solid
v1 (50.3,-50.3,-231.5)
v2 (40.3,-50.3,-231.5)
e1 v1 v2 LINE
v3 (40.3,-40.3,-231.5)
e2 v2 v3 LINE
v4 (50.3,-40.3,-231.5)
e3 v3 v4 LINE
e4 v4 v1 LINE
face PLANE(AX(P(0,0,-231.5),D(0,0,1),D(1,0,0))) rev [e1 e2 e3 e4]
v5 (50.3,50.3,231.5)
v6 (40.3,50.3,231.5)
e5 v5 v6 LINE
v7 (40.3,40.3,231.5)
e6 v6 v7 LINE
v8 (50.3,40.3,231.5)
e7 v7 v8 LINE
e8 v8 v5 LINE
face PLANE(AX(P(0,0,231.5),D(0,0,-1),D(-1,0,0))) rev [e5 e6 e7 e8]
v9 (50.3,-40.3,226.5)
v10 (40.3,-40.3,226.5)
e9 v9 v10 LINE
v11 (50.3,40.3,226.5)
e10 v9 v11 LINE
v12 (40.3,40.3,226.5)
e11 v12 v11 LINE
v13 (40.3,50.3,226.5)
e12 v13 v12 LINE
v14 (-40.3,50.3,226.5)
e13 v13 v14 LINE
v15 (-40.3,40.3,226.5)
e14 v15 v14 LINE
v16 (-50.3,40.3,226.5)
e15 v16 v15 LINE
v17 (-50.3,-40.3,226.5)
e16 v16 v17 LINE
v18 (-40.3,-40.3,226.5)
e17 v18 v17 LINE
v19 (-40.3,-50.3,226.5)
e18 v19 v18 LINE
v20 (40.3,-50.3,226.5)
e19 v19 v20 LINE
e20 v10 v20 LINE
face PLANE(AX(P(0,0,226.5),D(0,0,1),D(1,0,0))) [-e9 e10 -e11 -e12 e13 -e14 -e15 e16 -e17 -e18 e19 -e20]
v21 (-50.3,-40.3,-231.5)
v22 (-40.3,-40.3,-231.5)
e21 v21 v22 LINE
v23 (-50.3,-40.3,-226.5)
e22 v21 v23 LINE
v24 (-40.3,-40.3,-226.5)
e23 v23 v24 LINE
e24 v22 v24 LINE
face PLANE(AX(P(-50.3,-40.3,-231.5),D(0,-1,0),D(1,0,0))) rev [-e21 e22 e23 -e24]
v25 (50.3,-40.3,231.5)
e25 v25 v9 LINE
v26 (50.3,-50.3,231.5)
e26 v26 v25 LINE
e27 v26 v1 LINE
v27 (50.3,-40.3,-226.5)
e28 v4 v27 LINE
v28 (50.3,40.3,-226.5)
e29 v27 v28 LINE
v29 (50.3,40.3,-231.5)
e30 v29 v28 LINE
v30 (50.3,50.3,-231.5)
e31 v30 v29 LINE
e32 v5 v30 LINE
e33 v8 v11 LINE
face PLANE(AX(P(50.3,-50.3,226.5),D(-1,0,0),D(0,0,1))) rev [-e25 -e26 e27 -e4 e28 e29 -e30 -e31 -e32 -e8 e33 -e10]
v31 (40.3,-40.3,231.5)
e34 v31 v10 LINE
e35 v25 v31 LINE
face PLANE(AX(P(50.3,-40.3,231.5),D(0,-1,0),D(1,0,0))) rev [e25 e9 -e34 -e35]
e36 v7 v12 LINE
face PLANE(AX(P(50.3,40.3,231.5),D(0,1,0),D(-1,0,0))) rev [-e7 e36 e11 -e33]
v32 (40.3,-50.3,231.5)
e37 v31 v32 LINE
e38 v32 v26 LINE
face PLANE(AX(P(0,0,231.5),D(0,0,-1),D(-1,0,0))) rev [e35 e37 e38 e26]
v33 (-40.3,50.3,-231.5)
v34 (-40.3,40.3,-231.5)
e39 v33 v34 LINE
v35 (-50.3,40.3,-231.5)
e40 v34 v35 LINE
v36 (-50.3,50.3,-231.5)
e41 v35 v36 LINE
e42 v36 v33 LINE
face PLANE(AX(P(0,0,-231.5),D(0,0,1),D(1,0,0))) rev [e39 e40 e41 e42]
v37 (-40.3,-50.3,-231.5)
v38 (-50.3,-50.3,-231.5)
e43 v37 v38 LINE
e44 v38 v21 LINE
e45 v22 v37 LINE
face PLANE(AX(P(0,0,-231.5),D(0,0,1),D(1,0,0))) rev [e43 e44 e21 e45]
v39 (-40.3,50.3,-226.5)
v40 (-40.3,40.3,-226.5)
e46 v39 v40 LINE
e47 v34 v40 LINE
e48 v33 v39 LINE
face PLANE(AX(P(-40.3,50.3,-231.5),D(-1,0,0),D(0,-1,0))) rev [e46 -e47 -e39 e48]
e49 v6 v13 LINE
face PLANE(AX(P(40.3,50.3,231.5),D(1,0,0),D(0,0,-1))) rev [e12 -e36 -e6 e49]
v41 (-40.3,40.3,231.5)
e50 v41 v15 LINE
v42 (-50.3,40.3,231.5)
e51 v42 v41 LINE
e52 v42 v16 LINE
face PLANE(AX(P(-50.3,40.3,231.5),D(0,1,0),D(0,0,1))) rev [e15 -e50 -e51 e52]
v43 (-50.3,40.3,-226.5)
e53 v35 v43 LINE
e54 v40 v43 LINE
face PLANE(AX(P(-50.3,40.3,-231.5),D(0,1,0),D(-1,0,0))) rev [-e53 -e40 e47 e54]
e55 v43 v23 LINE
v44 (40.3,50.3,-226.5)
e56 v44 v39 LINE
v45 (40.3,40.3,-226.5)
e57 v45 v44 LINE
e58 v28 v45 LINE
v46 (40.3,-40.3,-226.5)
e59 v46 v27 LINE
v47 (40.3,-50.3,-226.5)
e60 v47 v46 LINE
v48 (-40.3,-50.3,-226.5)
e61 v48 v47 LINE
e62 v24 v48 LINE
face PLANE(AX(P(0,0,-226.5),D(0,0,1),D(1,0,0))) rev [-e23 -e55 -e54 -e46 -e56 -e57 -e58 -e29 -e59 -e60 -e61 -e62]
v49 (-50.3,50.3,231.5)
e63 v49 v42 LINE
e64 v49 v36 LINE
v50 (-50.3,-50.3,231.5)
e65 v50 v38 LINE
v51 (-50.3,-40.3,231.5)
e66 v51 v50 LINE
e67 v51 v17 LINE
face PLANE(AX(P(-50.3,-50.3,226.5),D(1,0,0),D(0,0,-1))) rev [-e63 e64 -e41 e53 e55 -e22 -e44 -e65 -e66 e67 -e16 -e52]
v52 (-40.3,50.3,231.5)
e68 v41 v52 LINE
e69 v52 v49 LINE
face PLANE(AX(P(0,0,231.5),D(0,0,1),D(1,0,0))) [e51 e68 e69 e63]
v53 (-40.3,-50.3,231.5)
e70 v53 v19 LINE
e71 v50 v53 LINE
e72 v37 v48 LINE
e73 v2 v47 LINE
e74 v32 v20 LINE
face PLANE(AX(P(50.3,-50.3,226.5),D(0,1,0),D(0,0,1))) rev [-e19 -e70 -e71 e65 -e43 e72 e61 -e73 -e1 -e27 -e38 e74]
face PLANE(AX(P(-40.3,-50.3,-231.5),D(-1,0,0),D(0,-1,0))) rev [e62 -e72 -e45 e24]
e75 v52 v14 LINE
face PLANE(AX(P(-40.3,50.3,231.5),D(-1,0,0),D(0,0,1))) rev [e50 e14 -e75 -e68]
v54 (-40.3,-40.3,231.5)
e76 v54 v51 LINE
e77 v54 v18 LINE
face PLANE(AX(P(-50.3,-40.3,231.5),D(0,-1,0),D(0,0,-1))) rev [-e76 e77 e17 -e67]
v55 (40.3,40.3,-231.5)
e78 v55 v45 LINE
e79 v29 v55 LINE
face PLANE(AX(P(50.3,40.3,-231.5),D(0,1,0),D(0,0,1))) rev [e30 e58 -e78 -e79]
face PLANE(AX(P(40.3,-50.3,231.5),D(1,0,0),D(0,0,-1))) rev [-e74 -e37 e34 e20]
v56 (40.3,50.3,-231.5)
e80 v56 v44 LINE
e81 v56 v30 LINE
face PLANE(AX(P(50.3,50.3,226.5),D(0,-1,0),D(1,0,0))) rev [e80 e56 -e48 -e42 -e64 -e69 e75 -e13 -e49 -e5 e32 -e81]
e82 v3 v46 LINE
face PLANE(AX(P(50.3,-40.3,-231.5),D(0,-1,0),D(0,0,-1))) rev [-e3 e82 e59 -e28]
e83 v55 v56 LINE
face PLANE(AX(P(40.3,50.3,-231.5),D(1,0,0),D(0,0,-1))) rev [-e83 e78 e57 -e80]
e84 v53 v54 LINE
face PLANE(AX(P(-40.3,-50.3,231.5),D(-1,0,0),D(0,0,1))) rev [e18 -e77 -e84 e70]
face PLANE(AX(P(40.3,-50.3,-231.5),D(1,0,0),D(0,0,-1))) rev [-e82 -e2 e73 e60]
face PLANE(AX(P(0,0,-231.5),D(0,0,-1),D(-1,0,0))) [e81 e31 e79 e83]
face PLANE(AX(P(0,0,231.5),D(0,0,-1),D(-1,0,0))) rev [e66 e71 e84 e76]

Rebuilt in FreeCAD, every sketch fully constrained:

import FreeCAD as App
import Part
import Sketcher

V = App.Vector
Q = App.Units.Quantity

doc = App.newDocument("Part")
body = doc.addObject("PartDesign::Body", "Body")

# Sketch on XY plane
sketch1 = body.newObject("Sketcher::SketchObject", "Sketch")
sketch1.AttachmentSupport = (doc.getObject("XY_Plane"), [""])
sketch1.MapMode = "FlatFace"
sketch1.addGeometry(Part.LineSegment(V(-50.3, 50.3, 0), V(-50.3, -50.3, 0)), False)
sketch1.addGeometry(Part.LineSegment(V(-50.3, -50.3, 0), V(50.3, -50.3, 0)), False)
sketch1.addGeometry(Part.LineSegment(V(50.3, -50.3, 0), V(50.3, 50.3, 0)), False)
sketch1.addGeometry(Part.LineSegment(V(50.3, 50.3, 0), V(-50.3, 50.3, 0)), False)
sketch1.addConstraint(Sketcher.Constraint("Coincident", 0, 2, 1, 1))
sketch1.addConstraint(Sketcher.Constraint("Coincident", 1, 2, 2, 1))
sketch1.addConstraint(Sketcher.Constraint("Coincident", 2, 2, 3, 1))
sketch1.addConstraint(Sketcher.Constraint("Coincident", 3, 2, 0, 1))
sketch1.addConstraint(Sketcher.Constraint("Vertical", 0))
sketch1.addConstraint(Sketcher.Constraint("Horizontal", 1))
sketch1.addConstraint(Sketcher.Constraint("Vertical", 2))
sketch1.addConstraint(Sketcher.Constraint("Horizontal", 3))
sketch1.addConstraint(Sketcher.Constraint("Symmetric", 0, 2, 2, 2, -1, 1))
sketch1.addConstraint(Sketcher.Constraint("Equal", 3, 0))
sketch1.addConstraint(Sketcher.Constraint("DistanceX", 1, 1, 1, 2, Q("100.6 mm")))
pad1 = body.newObject("PartDesign::Pad", "Pad")
pad1.Profile = sketch1
pad1.Length = 453
pad1.Midplane = True

# Sketch on XY plane
sketch2 = body.newObject("Sketcher::SketchObject", "Sketch001")
sketch2.AttachmentSupport = (doc.getObject("XY_Plane"), [""])
sketch2.MapMode = "FlatFace"
sketch2.AttachmentOffset = App.Placement(V(0, 0, 226.5), App.Rotation())
sketch2.addGeometry(Part.LineSegment(V(-50.3, 50.3, 0), V(-50.3, 40.3, 0)), False)
sketch2.addGeometry(Part.LineSegment(V(-50.3, 40.3, 0), V(-40.3, 40.3, 0)), False)
sketch2.addGeometry(Part.LineSegment(V(-40.3, 40.3, 0), V(-40.3, 50.3, 0)), False)
sketch2.addGeometry(Part.LineSegment(V(-40.3, 50.3, 0), V(-50.3, 50.3, 0)), False)
sketch2.addGeometry(Part.LineSegment(V(40.3, 50.3, 0), V(40.3, 40.3, 0)), False)
sketch2.addGeometry(Part.LineSegment(V(40.3, 40.3, 0), V(50.3, 40.3, 0)), False)
sketch2.addGeometry(Part.LineSegment(V(50.3, 40.3, 0), V(50.3, 50.3, 0)), False)
sketch2.addGeometry(Part.LineSegment(V(50.3, 50.3, 0), V(40.3, 50.3, 0)), False)
sketch2.addGeometry(Part.LineSegment(V(40.3, -40.3, 0), V(40.3, -50.3, 0)), False)
sketch2.addGeometry(Part.LineSegment(V(40.3, -50.3, 0), V(50.3, -50.3, 0)), False)
sketch2.addGeometry(Part.LineSegment(V(50.3, -50.3, 0), V(50.3, -40.3, 0)), False)
sketch2.addGeometry(Part.LineSegment(V(50.3, -40.3, 0), V(40.3, -40.3, 0)), False)
sketch2.addGeometry(Part.LineSegment(V(-50.3, -40.3, 0), V(-50.3, -50.3, 0)), False)
sketch2.addGeometry(Part.LineSegment(V(-50.3, -50.3, 0), V(-40.3, -50.3, 0)), False)
sketch2.addGeometry(Part.LineSegment(V(-40.3, -50.3, 0), V(-40.3, -40.3, 0)), False)
sketch2.addGeometry(Part.LineSegment(V(-40.3, -40.3, 0), V(-50.3, -40.3, 0)), False)
sketch2.addConstraint(Sketcher.Constraint("Coincident", 0, 2, 1, 1))
sketch2.addConstraint(Sketcher.Constraint("Coincident", 1, 2, 2, 1))
sketch2.addConstraint(Sketcher.Constraint("Coincident", 2, 2, 3, 1))
sketch2.addConstraint(Sketcher.Constraint("Coincident", 3, 2, 0, 1))
sketch2.addConstraint(Sketcher.Constraint("Coincident", 4, 2, 5, 1))
sketch2.addConstraint(Sketcher.Constraint("Coincident", 5, 2, 6, 1))
sketch2.addConstraint(Sketcher.Constraint("Coincident", 6, 2, 7, 1))
sketch2.addConstraint(Sketcher.Constraint("Coincident", 7, 2, 4, 1))
sketch2.addConstraint(Sketcher.Constraint("Coincident", 8, 2, 9, 1))
sketch2.addConstraint(Sketcher.Constraint("Coincident", 9, 2, 10, 1))
sketch2.addConstraint(Sketcher.Constraint("Coincident", 10, 2, 11, 1))
sketch2.addConstraint(Sketcher.Constraint("Coincident", 11, 2, 8, 1))
sketch2.addConstraint(Sketcher.Constraint("Coincident", 12, 2, 13, 1))
sketch2.addConstraint(Sketcher.Constraint("Coincident", 13, 2, 14, 1))
sketch2.addConstraint(Sketcher.Constraint("Coincident", 14, 2, 15, 1))
sketch2.addConstraint(Sketcher.Constraint("Coincident", 15, 2, 12, 1))
sketch2.addConstraint(Sketcher.Constraint("Vertical", 0))
sketch2.addConstraint(Sketcher.Constraint("Horizontal", 1))
sketch2.addConstraint(Sketcher.Constraint("Vertical", 2))
sketch2.addConstraint(Sketcher.Constraint("Horizontal", 3))
sketch2.addConstraint(Sketcher.Constraint("Vertical", 4))
sketch2.addConstraint(Sketcher.Constraint("Horizontal", 5))
sketch2.addConstraint(Sketcher.Constraint("Vertical", 6))
sketch2.addConstraint(Sketcher.Constraint("Horizontal", 7))
sketch2.addConstraint(Sketcher.Constraint("Vertical", 8))
sketch2.addConstraint(Sketcher.Constraint("Horizontal", 9))
sketch2.addConstraint(Sketcher.Constraint("Vertical", 10))
sketch2.addConstraint(Sketcher.Constraint("Horizontal", 11))
sketch2.addConstraint(Sketcher.Constraint("Vertical", 12))
sketch2.addConstraint(Sketcher.Constraint("Horizontal", 13))
sketch2.addConstraint(Sketcher.Constraint("Vertical", 14))
sketch2.addConstraint(Sketcher.Constraint("Horizontal", 15))
sketch2.addConstraint(Sketcher.Constraint("Symmetric", 2, 2, 8, 2, -1, 1))
sketch2.addConstraint(Sketcher.Constraint("Symmetric", 0, 2, 10, 2, -1, 1))
sketch2.addConstraint(Sketcher.Constraint("Symmetric", 6, 2, 12, 2, -1, 1))
sketch2.addConstraint(Sketcher.Constraint("Symmetric", 4, 2, 14, 2, -1, 1))
sketch2.addConstraint(Sketcher.Constraint("Symmetric", 1, 2, 4, 2, -2))
sketch2.addConstraint(Sketcher.Constraint("Symmetric", 3, 2, 6, 2, -2))
sketch2.addConstraint(Sketcher.Constraint("Equal", 15, 0))
sketch2.addConstraint(Sketcher.Constraint("DistanceX", 1, 1, 1, 2, Q("10 mm")))
sketch2.addConstraint(Sketcher.Constraint("DistanceX", 0, 2, -1, 1, Q("50.3 mm")))
sketch2.addConstraint(Sketcher.Constraint("DistanceY", -1, 1, 0, 2, Q("40.3 mm")))
pad2 = body.newObject("PartDesign::Pad", "Pad001")
pad2.Profile = sketch2
pad2.Length = 5

# Sketch on XY plane
sketch3 = body.newObject("Sketcher::SketchObject", "Sketch002")
sketch3.AttachmentSupport = (doc.getObject("XY_Plane"), [""])
sketch3.MapMode = "FlatFace"
sketch3.AttachmentOffset = App.Placement(V(0, 0, -226.5), App.Rotation())
sketch3.addGeometry(Part.LineSegment(V(50.3, 50.3, 0), V(50.3, 40.3, 0)), False)
sketch3.addGeometry(Part.LineSegment(V(50.3, 40.3, 0), V(40.3, 40.3, 0)), False)
sketch3.addGeometry(Part.LineSegment(V(40.3, 40.3, 0), V(40.3, 50.3, 0)), False)
sketch3.addGeometry(Part.LineSegment(V(40.3, 50.3, 0), V(50.3, 50.3, 0)), False)
sketch3.addGeometry(Part.LineSegment(V(-40.3, 50.3, 0), V(-40.3, 40.3, 0)), False)
sketch3.addGeometry(Part.LineSegment(V(-40.3, 40.3, 0), V(-50.3, 40.3, 0)), False)
sketch3.addGeometry(Part.LineSegment(V(-50.3, 40.3, 0), V(-50.3, 50.3, 0)), False)
sketch3.addGeometry(Part.LineSegment(V(-50.3, 50.3, 0), V(-40.3, 50.3, 0)), False)
sketch3.addGeometry(Part.LineSegment(V(-40.3, -40.3, 0), V(-40.3, -50.3, 0)), False)
sketch3.addGeometry(Part.LineSegment(V(-40.3, -50.3, 0), V(-50.3, -50.3, 0)), False)
sketch3.addGeometry(Part.LineSegment(V(-50.3, -50.3, 0), V(-50.3, -40.3, 0)), False)
sketch3.addGeometry(Part.LineSegment(V(-50.3, -40.3, 0), V(-40.3, -40.3, 0)), False)
sketch3.addGeometry(Part.LineSegment(V(50.3, -40.3, 0), V(50.3, -50.3, 0)), False)
sketch3.addGeometry(Part.LineSegment(V(50.3, -50.3, 0), V(40.3, -50.3, 0)), False)
sketch3.addGeometry(Part.LineSegment(V(40.3, -50.3, 0), V(40.3, -40.3, 0)), False)
sketch3.addGeometry(Part.LineSegment(V(40.3, -40.3, 0), V(50.3, -40.3, 0)), False)
sketch3.addConstraint(Sketcher.Constraint("Coincident", 0, 2, 1, 1))
sketch3.addConstraint(Sketcher.Constraint("Coincident", 1, 2, 2, 1))
sketch3.addConstraint(Sketcher.Constraint("Coincident", 2, 2, 3, 1))
sketch3.addConstraint(Sketcher.Constraint("Coincident", 3, 2, 0, 1))
sketch3.addConstraint(Sketcher.Constraint("Coincident", 4, 2, 5, 1))
sketch3.addConstraint(Sketcher.Constraint("Coincident", 5, 2, 6, 1))
sketch3.addConstraint(Sketcher.Constraint("Coincident", 6, 2, 7, 1))
sketch3.addConstraint(Sketcher.Constraint("Coincident", 7, 2, 4, 1))
sketch3.addConstraint(Sketcher.Constraint("Coincident", 8, 2, 9, 1))
sketch3.addConstraint(Sketcher.Constraint("Coincident", 9, 2, 10, 1))
sketch3.addConstraint(Sketcher.Constraint("Coincident", 10, 2, 11, 1))
sketch3.addConstraint(Sketcher.Constraint("Coincident", 11, 2, 8, 1))
sketch3.addConstraint(Sketcher.Constraint("Coincident", 12, 2, 13, 1))
sketch3.addConstraint(Sketcher.Constraint("Coincident", 13, 2, 14, 1))
sketch3.addConstraint(Sketcher.Constraint("Coincident", 14, 2, 15, 1))
sketch3.addConstraint(Sketcher.Constraint("Coincident", 15, 2, 12, 1))
sketch3.addConstraint(Sketcher.Constraint("Vertical", 0))
sketch3.addConstraint(Sketcher.Constraint("Horizontal", 1))
sketch3.addConstraint(Sketcher.Constraint("Vertical", 2))
sketch3.addConstraint(Sketcher.Constraint("Horizontal", 3))
sketch3.addConstraint(Sketcher.Constraint("Vertical", 4))
sketch3.addConstraint(Sketcher.Constraint("Horizontal", 5))
sketch3.addConstraint(Sketcher.Constraint("Vertical", 6))
sketch3.addConstraint(Sketcher.Constraint("Horizontal", 7))
sketch3.addConstraint(Sketcher.Constraint("Vertical", 8))
sketch3.addConstraint(Sketcher.Constraint("Horizontal", 9))
sketch3.addConstraint(Sketcher.Constraint("Vertical", 10))
sketch3.addConstraint(Sketcher.Constraint("Horizontal", 11))
sketch3.addConstraint(Sketcher.Constraint("Vertical", 12))
sketch3.addConstraint(Sketcher.Constraint("Horizontal", 13))
sketch3.addConstraint(Sketcher.Constraint("Vertical", 14))
sketch3.addConstraint(Sketcher.Constraint("Horizontal", 15))
sketch3.addConstraint(Sketcher.Constraint("Symmetric", 2, 2, 8, 2, -1, 1))
sketch3.addConstraint(Sketcher.Constraint("Symmetric", 0, 2, 10, 2, -1, 1))
sketch3.addConstraint(Sketcher.Constraint("Symmetric", 6, 2, 12, 2, -1, 1))
sketch3.addConstraint(Sketcher.Constraint("Symmetric", 4, 2, 14, 2, -1, 1))
sketch3.addConstraint(Sketcher.Constraint("Symmetric", 1, 2, 4, 2, -2))
sketch3.addConstraint(Sketcher.Constraint("Symmetric", 3, 2, 6, 2, -2))
sketch3.addConstraint(Sketcher.Constraint("Equal", 15, 0))
sketch3.addConstraint(Sketcher.Constraint("DistanceX", 1, 2, 1, 1, Q("10 mm")))
sketch3.addConstraint(Sketcher.Constraint("DistanceX", -1, 1, 0, 2, Q("50.3 mm")))
sketch3.addConstraint(Sketcher.Constraint("DistanceY", -1, 1, 0, 2, Q("40.3 mm")))
pad3 = body.newObject("PartDesign::Pad", "Pad002")
pad3.Profile = sketch3
pad3.Length = 5
pad3.Reversed = True

doc.recompute()
